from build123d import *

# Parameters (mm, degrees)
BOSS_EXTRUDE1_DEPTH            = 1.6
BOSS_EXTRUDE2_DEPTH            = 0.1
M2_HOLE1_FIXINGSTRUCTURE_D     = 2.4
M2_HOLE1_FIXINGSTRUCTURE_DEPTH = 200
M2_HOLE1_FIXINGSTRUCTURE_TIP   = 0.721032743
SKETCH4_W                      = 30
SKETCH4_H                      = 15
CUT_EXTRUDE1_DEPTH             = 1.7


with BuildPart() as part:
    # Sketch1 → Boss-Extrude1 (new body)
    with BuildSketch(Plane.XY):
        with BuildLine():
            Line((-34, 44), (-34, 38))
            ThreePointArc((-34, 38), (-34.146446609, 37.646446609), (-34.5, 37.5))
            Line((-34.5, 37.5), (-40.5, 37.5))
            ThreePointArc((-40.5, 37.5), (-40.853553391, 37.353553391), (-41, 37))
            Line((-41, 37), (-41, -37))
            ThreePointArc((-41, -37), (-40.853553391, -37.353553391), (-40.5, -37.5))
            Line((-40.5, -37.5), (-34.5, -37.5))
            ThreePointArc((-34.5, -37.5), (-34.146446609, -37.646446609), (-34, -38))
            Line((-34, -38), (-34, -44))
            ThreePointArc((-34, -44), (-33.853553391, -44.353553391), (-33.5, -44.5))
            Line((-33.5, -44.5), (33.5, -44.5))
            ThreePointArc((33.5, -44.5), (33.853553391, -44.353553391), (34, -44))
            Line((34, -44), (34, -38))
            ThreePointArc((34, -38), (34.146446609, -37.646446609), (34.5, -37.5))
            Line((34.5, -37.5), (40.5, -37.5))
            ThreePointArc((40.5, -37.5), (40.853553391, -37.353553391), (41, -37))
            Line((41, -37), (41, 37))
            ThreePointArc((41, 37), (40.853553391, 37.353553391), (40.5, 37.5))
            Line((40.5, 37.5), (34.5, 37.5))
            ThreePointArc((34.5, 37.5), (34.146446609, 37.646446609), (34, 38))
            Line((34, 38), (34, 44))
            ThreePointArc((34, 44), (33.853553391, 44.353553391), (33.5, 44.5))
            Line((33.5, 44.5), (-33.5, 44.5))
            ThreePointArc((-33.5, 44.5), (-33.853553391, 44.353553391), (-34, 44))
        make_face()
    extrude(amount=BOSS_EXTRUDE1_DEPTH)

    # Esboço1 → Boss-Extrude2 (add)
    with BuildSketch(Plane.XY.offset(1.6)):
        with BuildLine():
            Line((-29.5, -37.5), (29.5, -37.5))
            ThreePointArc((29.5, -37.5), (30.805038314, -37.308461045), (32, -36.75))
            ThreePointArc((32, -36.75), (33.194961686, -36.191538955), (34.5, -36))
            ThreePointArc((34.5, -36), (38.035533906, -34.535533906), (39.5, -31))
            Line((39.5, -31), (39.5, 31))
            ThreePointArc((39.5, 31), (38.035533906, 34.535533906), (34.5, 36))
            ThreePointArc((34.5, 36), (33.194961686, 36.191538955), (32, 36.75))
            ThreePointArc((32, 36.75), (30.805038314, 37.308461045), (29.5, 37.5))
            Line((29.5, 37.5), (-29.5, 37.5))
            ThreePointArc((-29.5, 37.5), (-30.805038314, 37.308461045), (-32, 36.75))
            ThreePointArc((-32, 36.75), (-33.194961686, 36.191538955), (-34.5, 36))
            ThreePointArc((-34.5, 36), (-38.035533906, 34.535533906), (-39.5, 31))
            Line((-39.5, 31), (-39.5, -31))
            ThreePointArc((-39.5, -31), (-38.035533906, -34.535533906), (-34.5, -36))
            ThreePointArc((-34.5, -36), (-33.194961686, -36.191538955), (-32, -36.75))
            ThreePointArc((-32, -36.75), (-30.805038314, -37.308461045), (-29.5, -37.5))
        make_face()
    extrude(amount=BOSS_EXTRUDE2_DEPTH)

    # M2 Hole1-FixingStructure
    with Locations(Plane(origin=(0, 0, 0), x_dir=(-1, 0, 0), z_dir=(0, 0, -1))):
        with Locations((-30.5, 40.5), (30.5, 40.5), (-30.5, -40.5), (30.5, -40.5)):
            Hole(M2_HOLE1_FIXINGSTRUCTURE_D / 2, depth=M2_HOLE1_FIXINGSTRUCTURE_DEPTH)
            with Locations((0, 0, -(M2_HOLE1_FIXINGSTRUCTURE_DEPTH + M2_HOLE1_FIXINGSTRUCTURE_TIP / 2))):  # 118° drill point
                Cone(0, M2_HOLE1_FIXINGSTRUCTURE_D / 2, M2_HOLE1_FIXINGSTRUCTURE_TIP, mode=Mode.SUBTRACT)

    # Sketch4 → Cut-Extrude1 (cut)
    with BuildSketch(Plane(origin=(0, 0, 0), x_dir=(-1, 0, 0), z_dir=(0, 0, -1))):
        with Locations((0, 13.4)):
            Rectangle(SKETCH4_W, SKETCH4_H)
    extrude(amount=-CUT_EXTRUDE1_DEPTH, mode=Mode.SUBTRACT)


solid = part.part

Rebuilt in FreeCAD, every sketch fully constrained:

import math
import FreeCAD as App
import Part
import Sketcher
from FreeCAD import Vector
Q = App.Units.Quantity


def add_polygon(sketch, points):
    """Adds a closed chain of lines whose ends are joined by coincident constraints."""
    first, n = sketch.GeometryCount, len(points)
    for a, b in zip(points, points[1:] + points[:1]):
        sketch.addGeometry(Part.LineSegment(App.Vector(*a, 0), App.Vector(*b, 0)), False)
    for i in range(n):
        sketch.addConstraint(Sketcher.Constraint("Coincident", first + i, 2, first + (i + 1) % n, 1))

doc = App.newDocument("Part")
body = doc.addObject("PartDesign::Body", "Body")

# Sketch on XY plane
sketch1 = body.newObject("Sketcher::SketchObject", "Sketch")
sketch1.AttachmentSupport = (doc.getObject("XY_Plane"), [""])
sketch1.MapMode = "FlatFace"
sketch1.addGeometry(Part.LineSegment(Vector(-34, 44, 0), Vector(-34, 38, 0)), False)
sketch1.addGeometry(Part.ArcOfCircle(Part.Circle(Vector(-34.5, 38, 0), Vector(0, 0, 1), 0.5), math.radians(-90), math.radians(0)), False)
sketch1.addGeometry(Part.LineSegment(Vector(-34.5, 37.5, 0), Vector(-40.5, 37.5, 0)), False)
sketch1.addGeometry(Part.ArcOfCircle(Part.Circle(Vector(-40.5, 37, 0), Vector(0, 0, 1), 0.5), math.radians(90), math.radians(180)), False)
sketch1.addGeometry(Part.LineSegment(Vector(-41, 37, 0), Vector(-41, -37, 0)), False)
sketch1.addGeometry(Part.ArcOfCircle(Part.Circle(Vector(-40.5, -37, 0), Vector(0, 0, 1), 0.5), math.radians(180), math.radians(270)), False)
sketch1.addGeometry(Part.LineSegment(Vector(-40.5, -37.5, 0), Vector(-34.5, -37.5, 0)), False)
sketch1.addGeometry(Part.ArcOfCircle(Part.Circle(Vector(-34.5, -38, 0), Vector(0, 0, 1), 0.5), math.radians(0), math.radians(90)), False)
sketch1.addGeometry(Part.LineSegment(Vector(-34, -38, 0), Vector(-34, -44, 0)), False)
sketch1.addGeometry(Part.ArcOfCircle(Part.Circle(Vector(-33.5, -44, 0), Vector(0, 0, 1), 0.5), math.radians(180), math.radians(270)), False)
sketch1.addGeometry(Part.LineSegment(Vector(-33.5, -44.5, 0), Vector(33.5, -44.5, 0)), False)
sketch1.addGeometry(Part.ArcOfCircle(Part.Circle(Vector(33.5, -44, 0), Vector(0, 0, 1), 0.5), math.radians(-90), math.radians(0)), False)
sketch1.addGeometry(Part.LineSegment(Vector(34, -44, 0), Vector(34, -38, 0)), False)
sketch1.addGeometry(Part.ArcOfCircle(Part.Circle(Vector(34.5, -38, 0), Vector(0, 0, 1), 0.5), math.radians(90), math.radians(180)), False)
sketch1.addGeometry(Part.LineSegment(Vector(34.5, -37.5, 0), Vector(40.5, -37.5, 0)), False)
sketch1.addGeometry(Part.ArcOfCircle(Part.Circle(Vector(40.5, -37, 0), Vector(0, 0, 1), 0.5), math.radians(-90), math.radians(0)), False)
sketch1.addGeometry(Part.LineSegment(Vector(41, -37, 0), Vector(41, 37, 0)), False)
sketch1.addGeometry(Part.ArcOfCircle(Part.Circle(Vector(40.5, 37, 0), Vector(0, 0, 1), 0.5), math.radians(0), math.radians(90)), False)
sketch1.addGeometry(Part.LineSegment(Vector(40.5, 37.5, 0), Vector(34.5, 37.5, 0)), False)
sketch1.addGeometry(Part.ArcOfCircle(Part.Circle(Vector(34.5, 38, 0), Vector(0, 0, 1), 0.5), math.radians(180), math.radians(270)), False)
sketch1.addGeometry(Part.LineSegment(Vector(34, 38, 0), Vector(34, 44, 0)), False)
sketch1.addGeometry(Part.ArcOfCircle(Part.Circle(Vector(33.5, 44, 0), Vector(0, 0, 1), 0.5), math.radians(0), math.radians(90)), False)
sketch1.addGeometry(Part.LineSegment(Vector(33.5, 44.5, 0), Vector(-33.5, 44.5, 0)), False)
sketch1.addGeometry(Part.ArcOfCircle(Part.Circle(Vector(-33.5, 44, 0), Vector(0, 0, 1), 0.5), math.radians(90), math.radians(180)), False)
sketch1.addConstraint(Sketcher.Constraint("Tangent", 0, 2, 1, 2))
sketch1.addConstraint(Sketcher.Constraint("Tangent", 1, 1, 2, 1))
sketch1.addConstraint(Sketcher.Constraint("Tangent", 2, 2, 3, 1))
sketch1.addConstraint(Sketcher.Constraint("Tangent", 3, 2, 4, 1))
sketch1.addConstraint(Sketcher.Constraint("Tangent", 4, 2, 5, 1))
sketch1.addConstraint(Sketcher.Constraint("Tangent", 5, 2, 6, 1))
sketch1.addConstraint(Sketcher.Constraint("Tangent", 6, 2, 7, 2))
sketch1.addConstraint(Sketcher.Constraint("Tangent", 7, 1, 8, 1))
sketch1.addConstraint(Sketcher.Constraint("Tangent", 8, 2, 9, 1))
sketch1.addConstraint(Sketcher.Constraint("Tangent", 9, 2, 10, 1))
sketch1.addConstraint(Sketcher.Constraint("Tangent", 10, 2, 11, 1))
sketch1.addConstraint(Sketcher.Constraint("Tangent", 11, 2, 12, 1))
sketch1.addConstraint(Sketcher.Constraint("Tangent", 12, 2, 13, 2))
sketch1.addConstraint(Sketcher.Constraint("Tangent", 13, 1, 14, 1))
sketch1.addConstraint(Sketcher.Constraint("Tangent", 14, 2, 15, 1))
sketch1.addConstraint(Sketcher.Constraint("Tangent", 15, 2, 16, 1))
sketch1.addConstraint(Sketcher.Constraint("Tangent", 16, 2, 17, 1))
sketch1.addConstraint(Sketcher.Constraint("Tangent", 17, 2, 18, 1))
sketch1.addConstraint(Sketcher.Constraint("Tangent", 18, 2, 19, 2))
sketch1.addConstraint(Sketcher.Constraint("Tangent", 19, 1, 20, 1))
sketch1.addConstraint(Sketcher.Constraint("Tangent", 20, 2, 21, 1))
sketch1.addConstraint(Sketcher.Constraint("Tangent", 21, 2, 22, 1))
sketch1.addConstraint(Sketcher.Constraint("Tangent", 22, 2, 23, 1))
sketch1.addConstraint(Sketcher.Constraint("Tangent", 23, 2, 0, 1))
sketch1.addConstraint(Sketcher.Constraint("Vertical", 0))
sketch1.addConstraint(Sketcher.Constraint("Horizontal", 2))
sketch1.addConstraint(Sketcher.Constraint("Vertical", 4))
sketch1.addConstraint(Sketcher.Constraint("Horizontal", 6))
sketch1.addConstraint(Sketcher.Constraint("Vertical", 8))
sketch1.addConstraint(Sketcher.Constraint("Horizontal", 10))
sketch1.addConstraint(Sketcher.Constraint("Vertical", 12))
sketch1.addConstraint(Sketcher.Constraint("Horizontal", 14))
sketch1.addConstraint(Sketcher.Constraint("Vertical", 16))
sketch1.addConstraint(Sketcher.Constraint("Horizontal", 18))
sketch1.addConstraint(Sketcher.Constraint("Vertical", 20))
sketch1.addConstraint(Sketcher.Constraint("Horizontal", 22))
sketch1.addConstraint(Sketcher.Constraint("Equal", 1, 3))
sketch1.addConstraint(Sketcher.Constraint("Equal", 3, 5))
sketch1.addConstraint(Sketcher.Constraint("Equal", 5, 7))
sketch1.addConstraint(Sketcher.Constraint("Equal", 7, 9))
sketch1.addConstraint(Sketcher.Constraint("Equal", 9, 11))
sketch1.addConstraint(Sketcher.Constraint("Equal", 11, 13))
sketch1.addConstraint(Sketcher.Constraint("Equal", 13, 15))
sketch1.addConstraint(Sketcher.Constraint("Equal", 15, 17))
sketch1.addConstraint(Sketcher.Constraint("Equal", 17, 19))
sketch1.addConstraint(Sketcher.Constraint("Equal", 19, 21))
sketch1.addConstraint(Sketcher.Constraint("Equal", 21, 23))
sketch1.addConstraint(Sketcher.Constraint("Symmetric", 1, 3, 13, 3, -1, 1))
sketch1.addConstraint(Sketcher.Constraint("Symmetric", 5, 3, 17, 3, -1, 1))
sketch1.addConstraint(Sketcher.Constraint("Symmetric", 9, 3, 21, 3, -1, 1))
sketch1.addConstraint(Sketcher.Constraint("Symmetric", 7, 3, 13, 3, -2))
sketch1.addConstraint(Sketcher.Constraint("Equal", 18, 0))
sketch1.addConstraint(Sketcher.Constraint("Radius", 1, Q("0.5 mm")))
sketch1.addConstraint(Sketcher.Constraint("DistanceX", 2, 2, 2, 1, Q("6 mm")))
sketch1.addConstraint(Sketcher.Constraint("DistanceX", 10, 1, 10, 2, Q("67 mm")))
sketch1.addConstraint(Sketcher.Constraint("DistanceY", 4, 2, 4, 1, Q("74 mm")))
pad1 = body.newObject("PartDesign::Pad", "Pad")
pad1.Profile = sketch1
pad1.Length = 1.6

# Sketch on XY plane
sketch2 = body.newObject("Sketcher::SketchObject", "Sketch001")
sketch2.AttachmentSupport = (doc.getObject("XY_Plane"), [""])
sketch2.MapMode = "FlatFace"
sketch2.AttachmentOffset = App.Placement(Vector(0, 0, 1.6), App.Rotation())
sketch2.addGeometry(Part.LineSegment(Vector(-29.5, -37.5, 0), Vector(29.5, -37.5, 0)), False)
sketch2.addGeometry(Part.ArcOfCircle(Part.Circle(Vector(29.5, -33, 0), Vector(0, 0, 1), 4.5), math.radians(-90), math.radians(-57)), False)
sketch2.addGeometry(Part.ArcOfCircle(Part.Circle(Vector(34.5, -40.5, 0), Vector(0, 0, 1), 4.5), math.radians(90), math.radians(123)), False)
sketch2.addGeometry(Part.ArcOfCircle(Part.Circle(Vector(34.5, -31, 0), Vector(0, 0, 1), 5), math.radians(-90), math.radians(0)), False)
sketch2.addGeometry(Part.LineSegment(Vector(39.5, -31, 0), Vector(39.5, 31, 0)), False)
sketch2.addGeometry(Part.ArcOfCircle(Part.Circle(Vector(34.5, 31, 0), Vector(0, 0, 1), 5), math.radians(0), math.radians(90)), False)
sketch2.addGeometry(Part.ArcOfCircle(Part.Circle(Vector(34.5, 40.5, 0), Vector(0, 0, 1), 4.5), math.radians(-123), math.radians(-90)), False)
sketch2.addGeometry(Part.ArcOfCircle(Part.Circle(Vector(29.5, 33, 0), Vector(0, 0, 1), 4.5), math.radians(57), math.radians(90)), False)
sketch2.addGeometry(Part.LineSegment(Vector(29.5, 37.5, 0), Vector(-29.5, 37.5, 0)), False)
sketch2.addGeometry(Part.ArcOfCircle(Part.Circle(Vector(-29.5, 33, 0), Vector(0, 0, 1), 4.5), math.radians(90), math.radians(123)), False)
sketch2.addGeometry(Part.ArcOfCircle(Part.Circle(Vector(-34.5, 40.5, 0), Vector(0, 0, 1), 4.5), math.radians(-90), math.radians(-57)), False)
sketch2.addGeometry(Part.ArcOfCircle(Part.Circle(Vector(-34.5, 31, 0), Vector(0, 0, 1), 5), math.radians(90), math.radians(180)), False)
sketch2.addGeometry(Part.LineSegment(Vector(-39.5, 31, 0), Vector(-39.5, -31, 0)), False)
sketch2.addGeometry(Part.ArcOfCircle(Part.Circle(Vector(-34.5, -31, 0), Vector(0, 0, 1), 5), math.radians(180), math.radians(270)), False)
sketch2.addGeometry(Part.ArcOfCircle(Part.Circle(Vector(-34.5, -40.5, 0), Vector(0, 0, 1), 4.5), math.radians(57), math.radians(90)), False)
sketch2.addGeometry(Part.ArcOfCircle(Part.Circle(Vector(-29.5, -33, 0), Vector(0, 0, 1), 4.5), math.radians(-123), math.radians(-90)), False)
sketch2.addConstraint(Sketcher.Constraint("Tangent", 0, 2, 1, 1))
sketch2.addConstraint(Sketcher.Constraint("Tangent", 1, 2, 2, 2))
sketch2.addConstraint(Sketcher.Constraint("Tangent", 2, 1, 3, 1))
sketch2.addConstraint(Sketcher.Constraint("Tangent", 3, 2, 4, 1))
sketch2.addConstraint(Sketcher.Constraint("Tangent", 4, 2, 5, 1))
sketch2.addConstraint(Sketcher.Constraint("Tangent", 5, 2, 6, 2))
sketch2.addConstraint(Sketcher.Constraint("Tangent", 6, 1, 7, 1))
sketch2.addConstraint(Sketcher.Constraint("Tangent", 7, 2, 8, 1))
sketch2.addConstraint(Sketcher.Constraint("Tangent", 8, 2, 9, 1))
sketch2.addConstraint(Sketcher.Constraint("Tangent", 9, 2, 10, 2))
sketch2.addConstraint(Sketcher.Constraint("Tangent", 10, 1, 11, 1))
sketch2.addConstraint(Sketcher.Constraint("Tangent", 11, 2, 12, 1))
sketch2.addConstraint(Sketcher.Constraint("Tangent", 12, 2, 13, 1))
sketch2.addConstraint(Sketcher.Constraint("Tangent", 13, 2, 14, 2))
sketch2.addConstraint(Sketcher.Constraint("Tangent", 14, 1, 15, 1))
sketch2.addConstraint(Sketcher.Constraint("Tangent", 15, 2, 0, 1))
sketch2.addConstraint(Sketcher.Constraint("Horizontal", 0))
sketch2.addConstraint(Sketcher.Constraint("Vertical", 4))
sketch2.addConstraint(Sketcher.Constraint("Horizontal", 8))
sketch2.addConstraint(Sketcher.Constraint("Vertical", 12))
sketch2.addConstraint(Sketcher.Constraint("Equal", 1, 2))
sketch2.addConstraint(Sketcher.Constraint("Equal", 3, 5))
sketch2.addConstraint(Sketcher.Constraint("Equal", 2, 6))
sketch2.addConstraint(Sketcher.Constraint("Equal", 6, 7))
sketch2.addConstraint(Sketcher.Constraint("Equal", 7, 9))
sketch2.addConstraint(Sketcher.Constraint("Equal", 9, 10))
sketch2.addConstraint(Sketcher.Constraint("Equal", 5, 11))
sketch2.addConstraint(Sketcher.Constraint("Equal", 11, 13))
sketch2.addConstraint(Sketcher.Constraint("Equal", 10, 14))
sketch2.addConstraint(Sketcher.Constraint("Equal", 14, 15))
sketch2.addConstraint(Sketcher.Constraint("Symmetric", 1, 3, 9, 3, -1, 1))
sketch2.addConstraint(Sketcher.Constraint("Symmetric", 3, 3, 11, 3, -1, 1))
sketch2.addConstraint(Sketcher.Constraint("Symmetric", 6, 3, 14, 3, -1, 1))
sketch2.addConstraint(Sketcher.Constraint("Symmetric", 6, 3, 10, 3, -2))
sketch2.addConstraint(Sketcher.Constraint("Vertical", 2, 3, 3, 3))
sketch2.addConstraint(Sketcher.Constraint("Radius", 3, Q("5 mm")))
sketch2.addConstraint(Sketcher.Constraint("DistanceX", 0, 1, 0, 2, Q("59 mm")))
sketch2.addConstraint(Sketcher.Constraint("DistanceY", 4, 1, 4, 2, Q("62 mm")))
sketch2.addConstraint(Sketcher.Constraint("DistanceX", -1, 1, 1, 2, Q("32 mm")))
sketch2.addConstraint(Sketcher.Constraint("DistanceY", 0, 2, -1, 1, Q("37.5 mm")))
pad2 = body.newObject("PartDesign::Pad", "Pad001")
pad2.Profile = sketch2
pad2.Length = 0.1

# Sketch on XY plane
sketch3 = body.newObject("Sketcher::SketchObject", "Sketch002")
sketch3.AttachmentSupport = (doc.getObject("XY_Plane"), [""])
sketch3.MapMode = "FlatFace"
sketch3.addGeometry(Part.Circle(Vector(30.5, 40.5, 0), Vector(0, 0, 1), 1.2), False)
sketch3.addGeometry(Part.Circle(Vector(-30.5, 40.5, 0), Vector(0, 0, 1), 1.2), False)
sketch3.addGeometry(Part.Circle(Vector(30.5, -40.5, 0), Vector(0, 0, 1), 1.2), False)
sketch3.addGeometry(Part.Circle(Vector(-30.5, -40.5, 0), Vector(0, 0, 1), 1.2), False)
sketch3.addConstraint(Sketcher.Constraint("Equal", 0, 1))
sketch3.addConstraint(Sketcher.Constraint("Equal", 1, 2))
sketch3.addConstraint(Sketcher.Constraint("Equal", 2, 3))
sketch3.addConstraint(Sketcher.Constraint("Symmetric", 1, 3, 2, 3, -1, 1))
sketch3.addConstraint(Sketcher.Constraint("Symmetric", 0, 3, 3, 3, -1, 1))
sketch3.addConstraint(Sketcher.Constraint("Symmetric", 0, 3, 1, 3, -2))
sketch3.addConstraint(Sketcher.Constraint("Diameter", 0, Q("2.4 mm")))
sketch3.addConstraint(Sketcher.Constraint("DistanceX", 1, 3, 0, 3, Q("61 mm")))
sketch3.addConstraint(Sketcher.Constraint("DistanceY", 2, 3, 0, 3, Q("81 mm")))
doc.recompute()
hole = body.newObject("PartDesign::Hole", "Hole")
hole.Profile = sketch3
hole.ThreadType = "None"
hole.Diameter = 2.4
hole.DepthType = "Dimension"
hole.Depth = 200
hole.DrillPoint = "Angled"
hole.DrillPointAngle = 118
hole.Reversed = True

# Sketch on XY plane
sketch4 = body.newObject("Sketcher::SketchObject", "Sketch003")
sketch4.AttachmentSupport = (doc.getObject("XY_Plane"), [""])
sketch4.MapMode = "FlatFace"
add_polygon(sketch4, [(15, 21), (15, 6), (-15, 6), (-15, 21)])  # lines 0-3
sketch4.addConstraint(Sketcher.Constraint("Vertical", 0))
sketch4.addConstraint(Sketcher.Constraint("Horizontal", 1))
sketch4.addConstraint(Sketcher.Constraint("Vertical", 2))
sketch4.addConstraint(Sketcher.Constraint("Horizontal", 3))
sketch4.addConstraint(Sketcher.Constraint("DistanceX", 1, 2, 1, 1, Q("30 mm")))
sketch4.addConstraint(Sketcher.Constraint("DistanceY", 0, 2, 0, 1, Q("15 mm")))
sketch4.addConstraint(Sketcher.Constraint("DistanceX", -1, 1, 0, 2, Q("15 mm")))
sketch4.addConstraint(Sketcher.Constraint("DistanceY", -1, 1, 0, 2, Q("5.9 mm")))
pocket1 = body.newObject("PartDesign::Pocket", "Pocket")
pocket1.Profile = sketch4
pocket1.Length = 1.7
pocket1.Reversed = True

doc.recompute()
